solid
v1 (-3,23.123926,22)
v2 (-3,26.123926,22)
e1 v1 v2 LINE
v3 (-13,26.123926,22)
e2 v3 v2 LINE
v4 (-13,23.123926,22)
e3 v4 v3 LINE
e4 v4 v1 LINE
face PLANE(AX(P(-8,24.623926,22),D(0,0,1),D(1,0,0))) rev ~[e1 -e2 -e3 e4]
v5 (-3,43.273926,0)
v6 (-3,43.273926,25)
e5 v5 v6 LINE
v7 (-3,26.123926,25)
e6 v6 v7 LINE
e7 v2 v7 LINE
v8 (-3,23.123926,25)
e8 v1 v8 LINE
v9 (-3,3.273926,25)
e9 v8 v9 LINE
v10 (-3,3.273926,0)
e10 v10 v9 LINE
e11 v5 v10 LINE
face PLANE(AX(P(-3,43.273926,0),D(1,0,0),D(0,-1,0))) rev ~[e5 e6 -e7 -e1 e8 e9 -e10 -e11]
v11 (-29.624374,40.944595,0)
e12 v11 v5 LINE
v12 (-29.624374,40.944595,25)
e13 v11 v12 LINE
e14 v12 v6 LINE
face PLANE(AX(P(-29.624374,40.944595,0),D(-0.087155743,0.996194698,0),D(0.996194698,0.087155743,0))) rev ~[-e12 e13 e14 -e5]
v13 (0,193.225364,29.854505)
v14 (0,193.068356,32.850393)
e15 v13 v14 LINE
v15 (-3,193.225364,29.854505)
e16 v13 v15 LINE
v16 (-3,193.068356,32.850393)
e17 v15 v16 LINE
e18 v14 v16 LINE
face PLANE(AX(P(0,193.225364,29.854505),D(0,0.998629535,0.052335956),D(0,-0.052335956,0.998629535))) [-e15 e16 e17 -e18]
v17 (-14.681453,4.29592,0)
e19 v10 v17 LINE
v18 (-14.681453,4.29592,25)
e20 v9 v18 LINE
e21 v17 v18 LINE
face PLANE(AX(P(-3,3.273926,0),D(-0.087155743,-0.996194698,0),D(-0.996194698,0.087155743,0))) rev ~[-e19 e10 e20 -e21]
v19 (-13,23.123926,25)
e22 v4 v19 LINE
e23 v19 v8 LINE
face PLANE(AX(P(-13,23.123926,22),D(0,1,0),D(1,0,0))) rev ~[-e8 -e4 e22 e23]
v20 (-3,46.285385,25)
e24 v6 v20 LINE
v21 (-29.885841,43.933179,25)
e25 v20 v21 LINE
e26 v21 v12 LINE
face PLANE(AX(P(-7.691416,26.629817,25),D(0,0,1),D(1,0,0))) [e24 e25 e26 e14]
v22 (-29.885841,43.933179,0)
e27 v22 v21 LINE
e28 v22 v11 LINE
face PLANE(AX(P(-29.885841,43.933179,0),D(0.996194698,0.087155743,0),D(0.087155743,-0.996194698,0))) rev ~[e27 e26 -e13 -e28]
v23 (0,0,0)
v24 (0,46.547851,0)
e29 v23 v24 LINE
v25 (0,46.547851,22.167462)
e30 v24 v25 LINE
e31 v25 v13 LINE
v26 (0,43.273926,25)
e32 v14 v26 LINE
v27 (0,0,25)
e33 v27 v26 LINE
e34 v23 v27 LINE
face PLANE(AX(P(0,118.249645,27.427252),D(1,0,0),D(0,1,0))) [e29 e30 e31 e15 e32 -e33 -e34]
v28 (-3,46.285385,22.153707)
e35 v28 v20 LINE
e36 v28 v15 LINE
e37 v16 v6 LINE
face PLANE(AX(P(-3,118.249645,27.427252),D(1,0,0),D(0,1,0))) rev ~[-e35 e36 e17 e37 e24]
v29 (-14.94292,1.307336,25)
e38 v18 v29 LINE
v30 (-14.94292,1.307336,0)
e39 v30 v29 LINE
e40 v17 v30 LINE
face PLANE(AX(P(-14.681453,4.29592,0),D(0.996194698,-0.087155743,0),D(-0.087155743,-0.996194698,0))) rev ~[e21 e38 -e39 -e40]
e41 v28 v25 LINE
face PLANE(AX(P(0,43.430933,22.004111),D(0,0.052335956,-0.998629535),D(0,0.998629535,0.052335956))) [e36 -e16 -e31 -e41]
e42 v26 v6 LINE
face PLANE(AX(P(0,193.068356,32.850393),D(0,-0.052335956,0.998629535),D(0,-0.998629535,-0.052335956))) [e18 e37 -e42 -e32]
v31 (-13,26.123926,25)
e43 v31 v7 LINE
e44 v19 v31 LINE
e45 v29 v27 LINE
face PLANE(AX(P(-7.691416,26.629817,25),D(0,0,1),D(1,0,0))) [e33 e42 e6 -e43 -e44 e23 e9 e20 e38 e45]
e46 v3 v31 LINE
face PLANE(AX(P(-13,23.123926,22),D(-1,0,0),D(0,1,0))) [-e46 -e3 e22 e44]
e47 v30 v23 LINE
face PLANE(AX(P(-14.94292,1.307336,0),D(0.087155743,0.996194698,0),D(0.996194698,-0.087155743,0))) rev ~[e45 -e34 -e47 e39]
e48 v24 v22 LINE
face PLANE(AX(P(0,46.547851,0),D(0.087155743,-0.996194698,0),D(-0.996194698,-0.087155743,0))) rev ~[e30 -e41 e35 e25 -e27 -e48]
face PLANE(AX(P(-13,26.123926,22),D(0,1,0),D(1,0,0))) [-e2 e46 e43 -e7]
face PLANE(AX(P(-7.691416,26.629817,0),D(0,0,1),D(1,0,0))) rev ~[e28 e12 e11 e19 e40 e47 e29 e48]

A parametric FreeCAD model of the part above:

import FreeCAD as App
import Part
import Sketcher

V = App.Vector
Q = App.Units.Quantity

doc = App.newDocument("Part")
body = doc.addObject("PartDesign::Body", "Body")

# Sketch on XY plane
sketch1 = body.newObject("Sketcher::SketchObject", "Sketch")
sketch1.AttachmentSupport = (doc.getObject("XY_Plane"), [""])
sketch1.MapMode = "FlatFace"
sketch1.addGeometry([
    Part.LineSegment(V(-14.9, 1.3, 0), V(0, 0, 0)),  # 0
    Part.LineSegment(V(0, 0, 0), V(0, 46.5, 0)),  # 1
    Part.LineSegment(V(0, 46.5, 0), V(-29.9, 43.9, 0)),  # 2
    Part.LineSegment(V(-29.9, 43.9, 0), V(-29.6, 40.9, 0)),  # 3
    Part.LineSegment(V(-29.6, 40.9, 0), V(-3, 43.3, 0)),  # 4
    Part.LineSegment(V(-3, 43.3, 0), V(-3, 3.3, 0)),  # 5
    Part.LineSegment(V(-3, 3.3, 0), V(-14.7, 4.3, 0)),  # 6
    Part.LineSegment(V(-14.7, 4.3, 0), V(-14.9, 1.3, 0)),  # 7
], False)
sketch1.addConstraint([
    Sketcher.Constraint("Coincident", 0, 2, 1, 1),
    Sketcher.Constraint("Coincident", 1, 2, 2, 1),
    Sketcher.Constraint("Coincident", 2, 2, 3, 1),
    Sketcher.Constraint("Coincident", 3, 2, 4, 1),
    Sketcher.Constraint("Coincident", 4, 2, 5, 1),
    Sketcher.Constraint("Coincident", 5, 2, 6, 1),
    Sketcher.Constraint("Coincident", 6, 2, 7, 1),
    Sketcher.Constraint("Coincident", 7, 2, 0, 1),
    Sketcher.Constraint("Vertical", 1),
    Sketcher.Constraint("Vertical", 5),
    Sketcher.Constraint("Coincident", 0, 2, -1, 1),
    Sketcher.Constraint("Perpendicular", 2, 3),
    Sketcher.Constraint("Perpendicular", 3, 4),
    Sketcher.Constraint("Parallel", 0, 6),
    Sketcher.Constraint("Perpendicular", 6, 7),
    Sketcher.Constraint("Equal", 3, 7),
    Sketcher.Constraint("DistanceY", 5, 2, 5, 1, 40.0),
    Sketcher.Constraint("Angle", 0, Q("-5 deg")),
    Sketcher.Constraint("Angle", 2, Q("-175 deg")),
    Sketcher.Constraint("Distance", 0, 15.0),
    Sketcher.Constraint("Distance", 2, 30.0),
    Sketcher.Constraint("Distance", 3, 3.0),
    Sketcher.Constraint("DistanceX", 4, 2, -1, 1, 3.0),
])
pad1 = body.newObject("PartDesign::Pad", "Pad")
pad1.Profile = sketch1
pad1.Length = 25

# Sketch on XY plane
sketch2 = body.newObject("Sketcher::SketchObject", "Sketch001")
sketch2.AttachmentSupport = (doc.getObject("XY_Plane"), [""])
sketch2.MapMode = "FlatFace"
sketch2.AttachmentOffset = App.Placement(V(0, 0, 22), App.Rotation())
sketch2.addGeometry([
    Part.LineSegment(V(-13, 26.1, 0), V(-13, 23.1, 0)),
    Part.LineSegment(V(-13, 23.1, 0), V(-3, 23.1, 0)),
    Part.LineSegment(V(-3, 23.1, 0), V(-3, 26.1, 0)),
    Part.LineSegment(V(-3, 26.1, 0), V(-13, 26.1, 0)),
], False)
sketch2.addConstraint([
    Sketcher.Constraint("Coincident", 0, 2, 1, 1),
    Sketcher.Constraint("Coincident", 1, 2, 2, 1),
    Sketcher.Constraint("Coincident", 2, 2, 3, 1),
    Sketcher.Constraint("Coincident", 3, 2, 0, 1),
    Sketcher.Constraint("Vertical", 0),
    Sketcher.Constraint("Horizontal", 1),
    Sketcher.Constraint("Vertical", 2),
    Sketcher.Constraint("Horizontal", 3),
    Sketcher.Constraint("DistanceX", 1, 1, 1, 2, 10.0),
    Sketcher.Constraint("DistanceY", 0, 2, 0, 1, 3.0),
    Sketcher.Constraint("DistanceX", 0, 2, -1, 1, 13.0),
    Sketcher.Constraint("DistanceY", -1, 1, 0, 2, 23.123926),
])
pad2 = body.newObject("PartDesign::Pad", "Pad001")
pad2.Profile = sketch2
pad2.Length = 3

# Sketch on YZ plane
sketch3 = body.newObject("Sketcher::SketchObject", "Sketch002")
sketch3.AttachmentSupport = (doc.getObject("YZ_Plane"), [""])
sketch3.MapMode = "FlatFace"
sketch3.addGeometry([
    Part.LineSegment(V(193.1, 32.9, 0), V(43.3, 25, 0)),
    Part.LineSegment(V(43.3, 25, 0), V(43.4, 22, 0)),
    Part.LineSegment(V(43.4, 22, 0), V(193.2, 29.9, 0)),
    Part.LineSegment(V(193.2, 29.9, 0), V(193.1, 32.9, 0)),
], False)
sketch3.addConstraint([
    Sketcher.Constraint("Coincident", 0, 2, 1, 1),
    Sketcher.Constraint("Coincident", 1, 2, 2, 1),
    Sketcher.Constraint("Coincident", 2, 2, 3, 1),
    Sketcher.Constraint("Coincident", 3, 2, 0, 1),
    Sketcher.Constraint("Perpendicular", 0, 1),
    Sketcher.Constraint("Perpendicular", 1, 2),
    Sketcher.Constraint("Perpendicular", 2, 3),
    Sketcher.Constraint("Angle", 0, Q("-177 deg")),
    Sketcher.Constraint("Distance", 0, 150.0),
    Sketcher.Constraint("Distance", 1, 3.0),
    Sketcher.Constraint("DistanceY", -1, 1, 0, 2, 25.0),
    Sketcher.Constraint("DistanceX", -1, 1, 0, 2, 43.273926),
])
pad3 = body.newObject("PartDesign::Pad", "Pad002")
pad3.Profile = sketch3
pad3.Length = 3
pad3.Reversed = True

doc.recompute()
